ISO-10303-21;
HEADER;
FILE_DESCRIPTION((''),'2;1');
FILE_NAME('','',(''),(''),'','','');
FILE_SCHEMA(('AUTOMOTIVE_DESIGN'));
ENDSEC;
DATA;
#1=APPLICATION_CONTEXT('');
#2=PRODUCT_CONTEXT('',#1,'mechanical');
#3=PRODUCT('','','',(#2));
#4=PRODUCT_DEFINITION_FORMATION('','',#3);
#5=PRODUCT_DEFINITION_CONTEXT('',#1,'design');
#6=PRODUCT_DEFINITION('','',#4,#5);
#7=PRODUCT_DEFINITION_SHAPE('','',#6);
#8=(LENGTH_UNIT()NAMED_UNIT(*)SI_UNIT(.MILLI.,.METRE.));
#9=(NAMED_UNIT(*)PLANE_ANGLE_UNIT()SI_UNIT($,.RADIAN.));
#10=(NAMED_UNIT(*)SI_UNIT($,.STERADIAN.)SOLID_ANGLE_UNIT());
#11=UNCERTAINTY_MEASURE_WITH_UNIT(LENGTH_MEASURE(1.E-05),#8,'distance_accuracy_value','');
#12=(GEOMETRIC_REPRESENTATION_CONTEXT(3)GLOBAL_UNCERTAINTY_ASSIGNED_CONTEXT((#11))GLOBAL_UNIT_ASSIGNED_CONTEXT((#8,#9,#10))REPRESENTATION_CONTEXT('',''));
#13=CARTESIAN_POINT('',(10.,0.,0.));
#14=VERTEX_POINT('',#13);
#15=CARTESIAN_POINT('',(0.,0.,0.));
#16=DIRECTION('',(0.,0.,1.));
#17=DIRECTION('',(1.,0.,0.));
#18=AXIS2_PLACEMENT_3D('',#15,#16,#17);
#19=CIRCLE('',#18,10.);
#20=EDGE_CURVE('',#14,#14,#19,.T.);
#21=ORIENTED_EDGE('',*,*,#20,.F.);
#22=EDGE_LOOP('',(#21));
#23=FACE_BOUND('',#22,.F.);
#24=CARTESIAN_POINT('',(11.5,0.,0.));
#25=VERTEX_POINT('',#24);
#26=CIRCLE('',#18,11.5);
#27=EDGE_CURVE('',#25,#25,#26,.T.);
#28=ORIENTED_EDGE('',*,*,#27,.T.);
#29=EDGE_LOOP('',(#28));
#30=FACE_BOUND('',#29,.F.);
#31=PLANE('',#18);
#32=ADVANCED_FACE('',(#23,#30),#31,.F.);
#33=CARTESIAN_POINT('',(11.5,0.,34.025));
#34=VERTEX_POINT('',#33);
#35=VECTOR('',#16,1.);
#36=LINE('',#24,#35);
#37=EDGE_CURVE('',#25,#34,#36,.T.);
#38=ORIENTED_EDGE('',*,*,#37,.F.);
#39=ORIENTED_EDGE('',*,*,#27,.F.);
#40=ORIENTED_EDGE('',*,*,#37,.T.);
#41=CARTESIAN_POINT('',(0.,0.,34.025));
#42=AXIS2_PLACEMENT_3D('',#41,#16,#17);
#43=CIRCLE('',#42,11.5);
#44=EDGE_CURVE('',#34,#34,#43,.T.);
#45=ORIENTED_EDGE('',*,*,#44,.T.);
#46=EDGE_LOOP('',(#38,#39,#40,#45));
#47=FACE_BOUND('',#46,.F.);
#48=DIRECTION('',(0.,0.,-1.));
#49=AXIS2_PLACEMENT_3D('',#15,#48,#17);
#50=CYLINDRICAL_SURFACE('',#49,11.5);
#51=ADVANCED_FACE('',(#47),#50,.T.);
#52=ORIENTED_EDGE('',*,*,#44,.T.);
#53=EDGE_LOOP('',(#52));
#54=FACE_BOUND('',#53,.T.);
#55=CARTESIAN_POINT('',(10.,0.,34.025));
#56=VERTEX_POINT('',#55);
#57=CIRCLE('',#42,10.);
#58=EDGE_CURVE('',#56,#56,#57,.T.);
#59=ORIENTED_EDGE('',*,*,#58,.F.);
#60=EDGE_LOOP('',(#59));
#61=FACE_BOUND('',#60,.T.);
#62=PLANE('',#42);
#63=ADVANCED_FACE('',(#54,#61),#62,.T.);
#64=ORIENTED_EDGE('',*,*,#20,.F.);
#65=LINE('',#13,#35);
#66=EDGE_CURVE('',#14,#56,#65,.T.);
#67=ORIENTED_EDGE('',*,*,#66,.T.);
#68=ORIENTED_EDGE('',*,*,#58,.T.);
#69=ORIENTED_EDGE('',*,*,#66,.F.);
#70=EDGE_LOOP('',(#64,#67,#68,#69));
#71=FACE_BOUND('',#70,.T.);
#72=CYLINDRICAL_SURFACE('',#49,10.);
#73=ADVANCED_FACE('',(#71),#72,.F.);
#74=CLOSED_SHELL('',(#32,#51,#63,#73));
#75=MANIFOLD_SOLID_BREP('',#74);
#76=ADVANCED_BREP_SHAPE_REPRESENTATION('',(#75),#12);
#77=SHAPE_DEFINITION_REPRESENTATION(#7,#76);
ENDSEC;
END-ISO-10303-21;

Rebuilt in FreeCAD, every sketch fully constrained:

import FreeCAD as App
import Part
import Sketcher
from FreeCAD import Vector

doc = App.newDocument("Part")
body = doc.addObject("PartDesign::Body", "Body")

# Sketch on XY plane
sketch1 = body.newObject("Sketcher::SketchObject", "Sketch")
sketch1.AttachmentSupport = (doc.getObject("XY_Plane"), [""])
sketch1.MapMode = "FlatFace"
sketch1.addGeometry([
    Part.Circle(Vector(0, 0, 0), Vector(0, 0, 1), 12),
    Part.Circle(Vector(0, 0, 0), Vector(0, 0, 1), 10),
], False)
sketch1.addConstraint([
    Sketcher.Constraint("Coincident", 0, 3, -1, 1),
    Sketcher.Constraint("Coincident", 1, 3, -1, 1),
    Sketcher.Constraint("Diameter", 0, 23.0),
    Sketcher.Constraint("Diameter", 1, 20.0),
])
pad1 = body.newObject("PartDesign::Pad", "Pad")
pad1.Profile = sketch1
pad1.Length = 34.025

doc.recompute()
